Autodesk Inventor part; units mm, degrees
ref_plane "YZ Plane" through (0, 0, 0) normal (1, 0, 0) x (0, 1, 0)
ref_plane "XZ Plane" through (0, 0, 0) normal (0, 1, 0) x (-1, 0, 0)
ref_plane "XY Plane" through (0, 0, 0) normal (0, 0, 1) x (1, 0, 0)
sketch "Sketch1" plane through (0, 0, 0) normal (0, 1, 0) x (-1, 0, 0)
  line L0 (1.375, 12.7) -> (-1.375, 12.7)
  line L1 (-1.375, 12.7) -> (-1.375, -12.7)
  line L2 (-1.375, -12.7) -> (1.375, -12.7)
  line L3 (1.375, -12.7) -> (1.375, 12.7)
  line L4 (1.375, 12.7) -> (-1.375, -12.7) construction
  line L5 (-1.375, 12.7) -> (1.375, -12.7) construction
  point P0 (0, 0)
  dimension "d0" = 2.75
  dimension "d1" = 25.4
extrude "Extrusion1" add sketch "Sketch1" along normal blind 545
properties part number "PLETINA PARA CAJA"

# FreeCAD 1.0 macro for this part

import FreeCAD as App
import Part
import Sketcher
Q = App.Units.Quantity


def add_polygon(sketch, points):
    """Adds a closed chain of lines whose ends are joined by coincident constraints."""
    first, n = sketch.GeometryCount, len(points)
    for a, b in zip(points, points[1:] + points[:1]):
        sketch.addGeometry(Part.LineSegment(App.Vector(*a, 0), App.Vector(*b, 0)), False)
    for i in range(n):
        sketch.addConstraint(Sketcher.Constraint("Coincident", first + i, 2, first + (i + 1) % n, 1))

doc = App.newDocument("Part")
body = doc.addObject("PartDesign::Body", "Body")

sketch1 = body.newObject("Sketcher::SketchObject", "Sketch")
sketch1.AttachmentSupport = (doc.getObject("XZ_Plane"), [""])
sketch1.MapMode = "FlatFace"
add_polygon(sketch1, [(-1.4, -12.7), (-1.4, 12.7), (1.4, 12.7), (1.4, -12.7)])
sketch1.addConstraint(Sketcher.Constraint("Vertical", 0))
sketch1.addConstraint(Sketcher.Constraint("Horizontal", 1))
sketch1.addConstraint(Sketcher.Constraint("Vertical", 2))
sketch1.addConstraint(Sketcher.Constraint("Horizontal", 3))
sketch1.addConstraint(Sketcher.Constraint("Symmetric", 0, 2, 2, 2, -1, 1))
sketch1.addConstraint(Sketcher.Constraint("DistanceY", 0, 1, 0, 2, Q("1 in")))
sketch1.addConstraint(Sketcher.Constraint("DistanceX", 1, 1, 1, 2, 2.75))
pad1 = body.newObject("PartDesign::Pad", "Pad")
pad1.Profile = sketch1
pad1.Length = Q("21.4566929 in")
pad1.Reversed = True

doc.recompute()
